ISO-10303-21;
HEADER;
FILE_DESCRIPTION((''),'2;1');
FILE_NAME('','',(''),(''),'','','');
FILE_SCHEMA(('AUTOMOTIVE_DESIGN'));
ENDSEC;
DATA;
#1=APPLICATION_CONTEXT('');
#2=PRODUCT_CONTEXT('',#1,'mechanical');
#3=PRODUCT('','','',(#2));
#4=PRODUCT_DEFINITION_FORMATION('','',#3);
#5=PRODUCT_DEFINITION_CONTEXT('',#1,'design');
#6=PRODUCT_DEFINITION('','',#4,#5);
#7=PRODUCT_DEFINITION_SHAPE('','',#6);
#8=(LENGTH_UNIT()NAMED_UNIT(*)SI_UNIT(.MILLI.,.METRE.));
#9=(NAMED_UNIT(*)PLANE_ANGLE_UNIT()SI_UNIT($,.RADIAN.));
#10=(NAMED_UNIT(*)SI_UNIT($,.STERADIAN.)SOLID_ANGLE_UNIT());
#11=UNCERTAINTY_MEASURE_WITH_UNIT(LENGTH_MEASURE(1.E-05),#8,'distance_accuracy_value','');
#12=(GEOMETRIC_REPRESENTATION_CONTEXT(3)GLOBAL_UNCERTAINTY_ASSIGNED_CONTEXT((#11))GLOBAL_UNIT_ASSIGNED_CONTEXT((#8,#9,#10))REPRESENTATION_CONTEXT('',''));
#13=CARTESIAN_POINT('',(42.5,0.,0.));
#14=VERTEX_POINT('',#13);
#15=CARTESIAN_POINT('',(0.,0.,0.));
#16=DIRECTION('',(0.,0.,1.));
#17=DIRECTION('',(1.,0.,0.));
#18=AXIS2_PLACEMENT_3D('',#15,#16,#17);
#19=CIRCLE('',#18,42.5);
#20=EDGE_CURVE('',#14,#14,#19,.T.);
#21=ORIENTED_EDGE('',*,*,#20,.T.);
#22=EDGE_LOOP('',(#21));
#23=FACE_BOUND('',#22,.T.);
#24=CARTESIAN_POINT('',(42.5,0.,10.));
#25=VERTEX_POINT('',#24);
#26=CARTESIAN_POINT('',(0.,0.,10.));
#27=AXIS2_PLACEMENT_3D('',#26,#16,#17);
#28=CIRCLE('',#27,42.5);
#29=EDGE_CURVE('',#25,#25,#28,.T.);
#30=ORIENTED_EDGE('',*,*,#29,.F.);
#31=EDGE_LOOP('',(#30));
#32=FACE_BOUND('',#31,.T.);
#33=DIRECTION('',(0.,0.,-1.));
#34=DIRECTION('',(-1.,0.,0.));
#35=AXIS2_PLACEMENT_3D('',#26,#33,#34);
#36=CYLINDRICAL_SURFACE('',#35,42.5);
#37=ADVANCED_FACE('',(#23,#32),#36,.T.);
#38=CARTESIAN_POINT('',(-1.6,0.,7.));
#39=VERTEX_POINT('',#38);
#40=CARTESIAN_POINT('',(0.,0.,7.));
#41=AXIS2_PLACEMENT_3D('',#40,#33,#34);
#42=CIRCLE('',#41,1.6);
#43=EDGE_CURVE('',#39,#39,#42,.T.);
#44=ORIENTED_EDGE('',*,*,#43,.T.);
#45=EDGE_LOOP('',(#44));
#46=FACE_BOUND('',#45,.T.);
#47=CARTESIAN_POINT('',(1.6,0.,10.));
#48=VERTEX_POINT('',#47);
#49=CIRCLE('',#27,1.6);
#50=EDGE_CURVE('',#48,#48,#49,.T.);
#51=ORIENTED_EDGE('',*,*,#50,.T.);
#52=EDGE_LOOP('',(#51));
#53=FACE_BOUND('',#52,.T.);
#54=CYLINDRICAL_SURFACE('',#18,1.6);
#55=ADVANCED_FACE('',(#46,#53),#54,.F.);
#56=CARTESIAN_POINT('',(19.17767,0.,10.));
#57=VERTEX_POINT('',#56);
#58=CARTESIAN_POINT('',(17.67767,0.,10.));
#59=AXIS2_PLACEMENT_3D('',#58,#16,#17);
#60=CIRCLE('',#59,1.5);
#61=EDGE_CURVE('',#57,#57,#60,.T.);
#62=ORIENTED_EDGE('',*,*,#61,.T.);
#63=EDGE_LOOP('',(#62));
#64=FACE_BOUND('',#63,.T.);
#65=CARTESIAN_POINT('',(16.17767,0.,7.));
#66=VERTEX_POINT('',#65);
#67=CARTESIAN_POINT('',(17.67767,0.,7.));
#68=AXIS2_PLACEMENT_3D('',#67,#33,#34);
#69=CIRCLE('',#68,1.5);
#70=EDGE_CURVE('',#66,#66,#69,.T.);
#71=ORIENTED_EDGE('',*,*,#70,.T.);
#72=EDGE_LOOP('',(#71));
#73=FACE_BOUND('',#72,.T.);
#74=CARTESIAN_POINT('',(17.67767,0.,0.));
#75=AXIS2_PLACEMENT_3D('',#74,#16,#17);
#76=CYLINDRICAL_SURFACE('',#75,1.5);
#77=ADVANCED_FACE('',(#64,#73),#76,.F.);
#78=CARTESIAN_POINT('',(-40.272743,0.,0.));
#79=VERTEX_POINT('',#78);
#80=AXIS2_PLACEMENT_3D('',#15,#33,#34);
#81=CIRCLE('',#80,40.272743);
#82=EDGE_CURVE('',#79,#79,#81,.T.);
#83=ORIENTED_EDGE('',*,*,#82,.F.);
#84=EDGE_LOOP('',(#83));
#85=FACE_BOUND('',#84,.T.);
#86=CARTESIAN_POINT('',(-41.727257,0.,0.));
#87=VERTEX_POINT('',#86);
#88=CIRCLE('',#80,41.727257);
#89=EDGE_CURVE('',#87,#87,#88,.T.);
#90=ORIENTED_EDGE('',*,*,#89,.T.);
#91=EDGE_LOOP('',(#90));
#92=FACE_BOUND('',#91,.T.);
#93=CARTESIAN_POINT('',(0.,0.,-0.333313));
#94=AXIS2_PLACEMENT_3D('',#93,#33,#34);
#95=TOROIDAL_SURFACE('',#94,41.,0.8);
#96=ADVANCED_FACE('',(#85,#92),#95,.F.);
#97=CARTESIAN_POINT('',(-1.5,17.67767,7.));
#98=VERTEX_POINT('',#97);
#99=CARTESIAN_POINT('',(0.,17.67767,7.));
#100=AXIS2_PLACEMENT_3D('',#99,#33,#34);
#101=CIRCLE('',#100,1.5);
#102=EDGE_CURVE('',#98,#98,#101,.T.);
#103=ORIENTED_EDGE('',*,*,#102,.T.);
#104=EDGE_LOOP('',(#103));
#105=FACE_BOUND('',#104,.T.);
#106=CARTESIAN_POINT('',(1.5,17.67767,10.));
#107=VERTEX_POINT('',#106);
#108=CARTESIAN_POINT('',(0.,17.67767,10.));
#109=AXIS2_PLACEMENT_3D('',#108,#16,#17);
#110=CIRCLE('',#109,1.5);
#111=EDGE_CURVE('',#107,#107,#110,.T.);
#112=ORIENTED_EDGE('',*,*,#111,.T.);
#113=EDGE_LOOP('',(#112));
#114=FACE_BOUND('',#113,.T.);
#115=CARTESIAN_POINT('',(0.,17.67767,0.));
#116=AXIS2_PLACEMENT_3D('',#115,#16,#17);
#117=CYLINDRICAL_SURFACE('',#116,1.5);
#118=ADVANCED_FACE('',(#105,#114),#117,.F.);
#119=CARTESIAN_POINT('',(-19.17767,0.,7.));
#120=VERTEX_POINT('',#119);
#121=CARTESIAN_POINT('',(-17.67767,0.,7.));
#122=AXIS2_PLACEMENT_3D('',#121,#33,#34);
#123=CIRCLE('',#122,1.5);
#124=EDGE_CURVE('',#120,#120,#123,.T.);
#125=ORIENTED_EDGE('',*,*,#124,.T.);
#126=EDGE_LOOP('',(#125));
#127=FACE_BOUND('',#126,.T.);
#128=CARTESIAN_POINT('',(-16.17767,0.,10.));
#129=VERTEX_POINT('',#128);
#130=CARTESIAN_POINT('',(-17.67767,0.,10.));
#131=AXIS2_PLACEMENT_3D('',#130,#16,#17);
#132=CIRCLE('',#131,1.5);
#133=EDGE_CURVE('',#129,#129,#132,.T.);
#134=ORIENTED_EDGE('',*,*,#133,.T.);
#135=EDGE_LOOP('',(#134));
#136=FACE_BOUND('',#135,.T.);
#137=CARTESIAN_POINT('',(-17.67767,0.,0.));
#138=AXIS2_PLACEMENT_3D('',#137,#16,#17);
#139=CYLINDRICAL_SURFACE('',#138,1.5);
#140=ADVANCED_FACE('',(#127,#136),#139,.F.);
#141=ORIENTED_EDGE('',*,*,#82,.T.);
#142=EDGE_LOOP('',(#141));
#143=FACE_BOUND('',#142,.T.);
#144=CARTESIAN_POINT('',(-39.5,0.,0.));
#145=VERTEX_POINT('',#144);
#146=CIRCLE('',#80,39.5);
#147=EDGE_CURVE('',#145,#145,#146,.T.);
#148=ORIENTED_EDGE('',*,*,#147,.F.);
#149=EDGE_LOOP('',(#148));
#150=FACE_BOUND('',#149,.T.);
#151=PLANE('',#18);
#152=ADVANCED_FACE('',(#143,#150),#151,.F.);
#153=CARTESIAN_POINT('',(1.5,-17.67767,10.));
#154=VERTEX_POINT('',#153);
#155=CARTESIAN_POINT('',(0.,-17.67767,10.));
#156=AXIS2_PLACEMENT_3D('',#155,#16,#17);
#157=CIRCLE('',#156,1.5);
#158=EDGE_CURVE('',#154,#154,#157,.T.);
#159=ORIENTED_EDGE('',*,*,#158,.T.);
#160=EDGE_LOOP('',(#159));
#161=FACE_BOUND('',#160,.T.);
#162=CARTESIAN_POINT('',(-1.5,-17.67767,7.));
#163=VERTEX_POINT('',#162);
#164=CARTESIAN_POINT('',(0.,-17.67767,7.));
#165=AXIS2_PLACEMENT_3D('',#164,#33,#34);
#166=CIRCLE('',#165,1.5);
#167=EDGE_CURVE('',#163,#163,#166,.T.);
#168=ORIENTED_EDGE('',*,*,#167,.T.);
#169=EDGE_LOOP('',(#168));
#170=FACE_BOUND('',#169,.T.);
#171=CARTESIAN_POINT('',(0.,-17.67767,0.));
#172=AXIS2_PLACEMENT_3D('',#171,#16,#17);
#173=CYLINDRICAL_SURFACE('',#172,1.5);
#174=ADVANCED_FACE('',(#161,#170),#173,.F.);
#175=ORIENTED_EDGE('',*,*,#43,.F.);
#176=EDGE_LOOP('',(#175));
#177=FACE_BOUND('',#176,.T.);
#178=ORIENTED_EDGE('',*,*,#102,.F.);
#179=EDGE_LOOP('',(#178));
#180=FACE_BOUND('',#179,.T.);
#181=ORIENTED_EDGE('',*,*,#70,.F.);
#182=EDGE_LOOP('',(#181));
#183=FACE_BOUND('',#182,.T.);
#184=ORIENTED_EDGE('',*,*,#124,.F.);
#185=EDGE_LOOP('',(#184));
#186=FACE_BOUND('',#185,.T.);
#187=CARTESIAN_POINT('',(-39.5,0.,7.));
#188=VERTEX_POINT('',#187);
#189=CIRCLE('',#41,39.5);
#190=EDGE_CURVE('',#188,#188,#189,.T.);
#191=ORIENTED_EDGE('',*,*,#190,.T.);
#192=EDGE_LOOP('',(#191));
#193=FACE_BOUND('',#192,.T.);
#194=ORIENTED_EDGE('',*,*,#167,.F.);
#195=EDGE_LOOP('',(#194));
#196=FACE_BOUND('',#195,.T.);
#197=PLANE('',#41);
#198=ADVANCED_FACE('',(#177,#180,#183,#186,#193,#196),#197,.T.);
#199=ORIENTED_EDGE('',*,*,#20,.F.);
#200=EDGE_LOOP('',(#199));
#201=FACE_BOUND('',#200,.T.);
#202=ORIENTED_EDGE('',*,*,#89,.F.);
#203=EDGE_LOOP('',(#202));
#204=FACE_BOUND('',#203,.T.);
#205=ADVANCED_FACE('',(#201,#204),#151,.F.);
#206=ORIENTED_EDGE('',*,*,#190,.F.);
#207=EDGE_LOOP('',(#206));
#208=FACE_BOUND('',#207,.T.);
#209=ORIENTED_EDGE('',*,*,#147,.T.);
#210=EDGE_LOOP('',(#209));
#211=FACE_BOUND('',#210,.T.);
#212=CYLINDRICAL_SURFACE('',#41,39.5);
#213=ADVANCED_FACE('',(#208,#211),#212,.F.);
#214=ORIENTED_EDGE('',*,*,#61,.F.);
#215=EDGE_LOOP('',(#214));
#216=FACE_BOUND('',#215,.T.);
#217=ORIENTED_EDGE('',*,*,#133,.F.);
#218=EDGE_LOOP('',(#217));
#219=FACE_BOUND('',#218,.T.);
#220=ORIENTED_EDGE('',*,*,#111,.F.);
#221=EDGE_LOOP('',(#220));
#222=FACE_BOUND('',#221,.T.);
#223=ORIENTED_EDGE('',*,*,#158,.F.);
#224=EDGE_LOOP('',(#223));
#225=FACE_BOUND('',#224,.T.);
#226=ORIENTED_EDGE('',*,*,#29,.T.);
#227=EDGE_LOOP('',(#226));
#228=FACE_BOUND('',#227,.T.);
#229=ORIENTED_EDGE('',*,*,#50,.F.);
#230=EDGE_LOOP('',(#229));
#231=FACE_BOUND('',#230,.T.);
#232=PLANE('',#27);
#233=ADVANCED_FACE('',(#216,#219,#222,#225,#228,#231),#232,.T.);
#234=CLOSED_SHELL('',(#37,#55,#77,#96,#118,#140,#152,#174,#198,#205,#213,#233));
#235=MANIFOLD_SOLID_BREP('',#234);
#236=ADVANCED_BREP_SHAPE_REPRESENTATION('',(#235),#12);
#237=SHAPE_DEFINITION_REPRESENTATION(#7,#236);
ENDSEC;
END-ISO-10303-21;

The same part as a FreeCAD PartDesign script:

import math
import FreeCAD as App
import Part
import Sketcher

V = App.Vector

doc = App.newDocument("Part")
params = doc.addObject("Spreadsheet::Sheet", "Params")
for row, (alias, value) in enumerate([
    ("sketch1_diameter", "85 mm"),
    ("pad1_length", "10 mm"),
    ("sketch2_diameter", "79 mm"),
    ("pocket1_length", "7 mm"),
    ("sketch3_diameter", "3 mm"),
    ("sketch3_diameter2", "3.2 mm"),
    ("sketch4_radius", "0.8 mm"),
    ("groove_angle", "360 deg"),
], start=1):
    params.set(f"A{row}", alias)
    params.set(f"B{row}", "=" + value)
    params.setAlias(f"B{row}", alias)

body = doc.addObject("PartDesign::Body", "Body")

# Sketch on XY plane
sketch1 = doc.addObject("Sketcher::SketchObject", "Sketch")
body.addObject(sketch1)
sketch1.AttachmentSupport = (doc.XY_Plane, [""])
sketch1.MapMode = "FlatFace"
sketch1.addGeometry(Part.Circle(V(0, 0, 0), V(0, 0, 1), 42), False)
sketch1.addConstraint(Sketcher.Constraint("Coincident", 0, 3, -1, 1))
sketch1.addConstraint(Sketcher.Constraint("Diameter", 0, 85.0))
sketch1.setExpression("Constraints[1]", "Params.sketch1_diameter")
pad1 = doc.addObject("PartDesign::Pad", "Pad")
body.addObject(pad1)
pad1.Profile = sketch1
pad1.setExpression("Length", "Params.pad1_length")

# Sketch on XY plane
sketch2 = doc.addObject("Sketcher::SketchObject", "Sketch001")
body.addObject(sketch2)
sketch2.AttachmentSupport = (doc.XY_Plane, [""])
sketch2.MapMode = "FlatFace"
sketch2.addGeometry(Part.Circle(V(0, 0, 0), V(0, 0, 1), 40), False)
sketch2.addConstraint(Sketcher.Constraint("Coincident", 0, 3, -1, 1))
sketch2.addConstraint(Sketcher.Constraint("Diameter", 0, 79.0))
sketch2.setExpression("Constraints[1]", "Params.sketch2_diameter")
pocket1 = doc.addObject("PartDesign::Pocket", "Pocket")
body.addObject(pocket1)
pocket1.Profile = sketch2
pocket1.setExpression("Length", "Params.pocket1_length")
pocket1.Reversed = True

# Sketch on XY plane
sketch3 = doc.addObject("Sketcher::SketchObject", "Sketch002")
body.addObject(sketch3)
sketch3.AttachmentSupport = (doc.XY_Plane, [""])
sketch3.MapMode = "FlatFace"
sketch3.AttachmentOffset = App.Placement(V(0, 0, 10), App.Rotation())
sketch3.addGeometry(Part.Circle(V(0, 17.7, 0), V(0, 0, 1), 1.5), False)
sketch3.addGeometry(Part.Circle(V(17.7, 0, 0), V(0, 0, 1), 1.5), False)
sketch3.addGeometry(Part.Circle(V(0, -17.7, 0), V(0, 0, 1), 1.5), False)
sketch3.addGeometry(Part.Circle(V(-17.7, 0, 0), V(0, 0, 1), 1.5), False)
sketch3.addGeometry(Part.Circle(V(0, 0, 0), V(0, 0, 1), 1.6), False)
sketch3.addConstraint(Sketcher.Constraint("Coincident", 4, 3, -1, 1))
sketch3.addConstraint(Sketcher.Constraint("Equal", 0, 1))
sketch3.addConstraint(Sketcher.Constraint("Equal", 1, 2))
sketch3.addConstraint(Sketcher.Constraint("Equal", 2, 3))
sketch3.addConstraint(Sketcher.Constraint("Symmetric", 0, 3, 2, 3, -1, 1))
sketch3.addConstraint(Sketcher.Constraint("Symmetric", 1, 3, 3, 3, -1, 1))
sketch3.addConstraint(Sketcher.Constraint("PointOnObject", 0, 3, -2))
sketch3.addConstraint(Sketcher.Constraint("PointOnObject", 1, 3, -1))
sketch3.addConstraint(Sketcher.Constraint("Diameter", 0, 3.0))
sketch3.addConstraint(Sketcher.Constraint("Diameter", 4, 3.2))
sketch3.addConstraint(Sketcher.Constraint("DistanceY", -1, 1, 0, 3, 17.67767))
sketch3.addConstraint(Sketcher.Constraint("DistanceX", -1, 1, 1, 3, 17.67767))
sketch3.setExpression("Constraints[8]", "Params.sketch3_diameter")
sketch3.setExpression("Constraints[9]", "Params.sketch3_diameter2")
pocket2 = doc.addObject("PartDesign::Pocket", "Pocket001")
body.addObject(pocket2)
pocket2.Profile = sketch3
pocket2.Type = "ThroughAll"

# Sketch on XZ plane
sketch4 = doc.addObject("Sketcher::SketchObject", "Sketch003")
body.addObject(sketch4)
sketch4.AttachmentSupport = (doc.XZ_Plane, [""])
sketch4.MapMode = "FlatFace"
sketch4.addGeometry(Part.LineSegment(V(41.7, 0, 0), V(40.3, 0, 0)), False)
sketch4.addGeometry(Part.ArcOfCircle(Part.Circle(V(41, -0.3, 0), V(0, 0, 1), 0.8), math.radians(25), math.radians(155)), False)
sketch4.addConstraint(Sketcher.Constraint("Coincident", 0, 1, 1, 1))
sketch4.addConstraint(Sketcher.Constraint("Coincident", 1, 2, 0, 2))
sketch4.addConstraint(Sketcher.Constraint("Horizontal", 0))
sketch4.addConstraint(Sketcher.Constraint("PointOnObject", 0, 1, -1))
sketch4.addConstraint(Sketcher.Constraint("Radius", 1, 0.8))
sketch4.addConstraint(Sketcher.Constraint("DistanceX", -1, 1, 1, 3, 41.0))
sketch4.addConstraint(Sketcher.Constraint("DistanceX", 0, 2, 0, 1, 1.454513))
sketch4.setExpression("Constraints[4]", "Params.sketch4_radius")
groove = doc.addObject("PartDesign::Groove", "Groove")
body.addObject(groove)
groove.Profile = sketch4
groove.ReferenceAxis = (sketch4, ["V_Axis"])
groove.setExpression("Angle", "Params.groove_angle")

doc.recompute()
